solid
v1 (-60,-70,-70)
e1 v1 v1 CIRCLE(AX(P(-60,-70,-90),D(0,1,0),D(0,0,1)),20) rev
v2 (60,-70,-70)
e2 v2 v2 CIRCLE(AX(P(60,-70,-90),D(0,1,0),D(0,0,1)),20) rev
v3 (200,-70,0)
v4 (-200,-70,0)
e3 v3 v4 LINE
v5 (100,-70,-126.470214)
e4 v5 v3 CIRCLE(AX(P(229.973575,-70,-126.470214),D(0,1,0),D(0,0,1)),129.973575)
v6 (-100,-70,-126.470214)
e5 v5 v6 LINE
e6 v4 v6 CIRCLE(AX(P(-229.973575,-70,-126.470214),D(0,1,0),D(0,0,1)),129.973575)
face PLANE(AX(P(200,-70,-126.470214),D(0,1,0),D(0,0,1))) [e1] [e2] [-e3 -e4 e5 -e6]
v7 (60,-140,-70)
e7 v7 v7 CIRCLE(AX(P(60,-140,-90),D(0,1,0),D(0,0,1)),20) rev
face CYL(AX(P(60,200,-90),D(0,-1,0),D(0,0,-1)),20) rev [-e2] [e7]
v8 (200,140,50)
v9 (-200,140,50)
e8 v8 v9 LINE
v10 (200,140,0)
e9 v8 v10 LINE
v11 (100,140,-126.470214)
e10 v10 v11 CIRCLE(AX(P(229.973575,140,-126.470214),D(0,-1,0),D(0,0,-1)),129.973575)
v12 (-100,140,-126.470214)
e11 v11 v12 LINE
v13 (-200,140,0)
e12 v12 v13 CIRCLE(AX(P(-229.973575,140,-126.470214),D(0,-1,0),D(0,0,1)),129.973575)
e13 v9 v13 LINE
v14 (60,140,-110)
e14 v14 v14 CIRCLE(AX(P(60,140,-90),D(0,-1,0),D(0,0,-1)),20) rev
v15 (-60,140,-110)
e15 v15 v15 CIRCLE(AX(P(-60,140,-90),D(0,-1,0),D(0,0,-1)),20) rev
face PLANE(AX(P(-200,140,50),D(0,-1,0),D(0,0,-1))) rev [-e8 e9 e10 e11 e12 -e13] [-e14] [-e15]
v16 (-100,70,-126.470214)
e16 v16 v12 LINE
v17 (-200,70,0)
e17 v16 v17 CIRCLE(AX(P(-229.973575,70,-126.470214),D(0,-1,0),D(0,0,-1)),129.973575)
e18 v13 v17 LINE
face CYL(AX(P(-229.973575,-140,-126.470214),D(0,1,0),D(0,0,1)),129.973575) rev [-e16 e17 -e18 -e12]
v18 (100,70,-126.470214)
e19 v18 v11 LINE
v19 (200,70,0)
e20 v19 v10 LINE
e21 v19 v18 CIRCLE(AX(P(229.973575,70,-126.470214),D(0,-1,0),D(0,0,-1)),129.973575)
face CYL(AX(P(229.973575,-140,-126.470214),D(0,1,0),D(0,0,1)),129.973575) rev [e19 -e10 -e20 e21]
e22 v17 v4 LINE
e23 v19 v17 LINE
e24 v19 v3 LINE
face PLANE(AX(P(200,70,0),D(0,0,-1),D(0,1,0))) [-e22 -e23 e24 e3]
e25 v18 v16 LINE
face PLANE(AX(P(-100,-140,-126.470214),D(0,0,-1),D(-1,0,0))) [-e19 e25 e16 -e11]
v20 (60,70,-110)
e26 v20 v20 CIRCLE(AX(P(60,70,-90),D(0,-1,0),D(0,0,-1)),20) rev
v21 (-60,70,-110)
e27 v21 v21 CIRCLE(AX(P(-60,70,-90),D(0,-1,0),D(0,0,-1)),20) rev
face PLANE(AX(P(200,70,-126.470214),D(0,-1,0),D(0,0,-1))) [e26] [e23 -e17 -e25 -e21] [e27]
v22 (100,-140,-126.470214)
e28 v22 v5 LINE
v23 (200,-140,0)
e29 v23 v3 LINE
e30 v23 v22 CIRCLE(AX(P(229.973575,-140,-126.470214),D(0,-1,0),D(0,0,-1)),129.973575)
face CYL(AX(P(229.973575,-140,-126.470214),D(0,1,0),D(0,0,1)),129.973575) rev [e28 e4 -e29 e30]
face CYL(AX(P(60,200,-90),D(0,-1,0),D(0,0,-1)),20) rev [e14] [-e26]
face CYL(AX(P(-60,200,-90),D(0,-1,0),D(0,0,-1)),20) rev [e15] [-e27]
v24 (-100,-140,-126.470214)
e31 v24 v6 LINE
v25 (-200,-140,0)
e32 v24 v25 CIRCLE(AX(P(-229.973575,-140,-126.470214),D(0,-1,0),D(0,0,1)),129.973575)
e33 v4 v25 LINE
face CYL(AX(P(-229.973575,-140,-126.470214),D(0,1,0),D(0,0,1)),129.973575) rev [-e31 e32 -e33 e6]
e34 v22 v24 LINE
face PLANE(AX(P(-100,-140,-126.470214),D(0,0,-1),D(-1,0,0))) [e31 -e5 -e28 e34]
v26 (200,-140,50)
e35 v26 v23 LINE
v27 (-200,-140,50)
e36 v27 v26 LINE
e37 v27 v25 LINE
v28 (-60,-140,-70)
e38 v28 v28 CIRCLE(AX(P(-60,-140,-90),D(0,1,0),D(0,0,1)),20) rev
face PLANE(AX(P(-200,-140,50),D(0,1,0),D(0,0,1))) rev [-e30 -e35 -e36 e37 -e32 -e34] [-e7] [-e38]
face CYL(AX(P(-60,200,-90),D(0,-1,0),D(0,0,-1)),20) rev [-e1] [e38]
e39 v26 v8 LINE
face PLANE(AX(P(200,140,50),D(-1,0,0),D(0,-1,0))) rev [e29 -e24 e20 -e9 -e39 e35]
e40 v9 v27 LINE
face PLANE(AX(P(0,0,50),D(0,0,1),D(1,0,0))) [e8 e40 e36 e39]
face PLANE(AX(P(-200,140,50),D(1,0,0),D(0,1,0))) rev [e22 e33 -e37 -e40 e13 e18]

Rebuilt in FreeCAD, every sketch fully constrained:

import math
import FreeCAD as App
import Part
import Sketcher
from FreeCAD import Vector
Q = App.Units.Quantity

doc = App.newDocument("Part")
params = doc.addObject("Spreadsheet::Sheet", "Params")
for row, (alias, value) in enumerate([
    ("sketch1_width", "400 mm"),
    ("sketch1_height", "280 mm"),
    ("pad1_length", "50 mm"),
    ("sketch2_width", "200 mm"),
    ("sketch2_width2", "400 mm"),
    ("pad2_length", "140 mm"),
    ("pad2_length2", "140 mm"),
    ("sketch3_width", "140 mm"),
    ("sketch4_diameter", "40 mm"),
], start=1):
    params.set(f"A{row}", alias)
    params.set(f"B{row}", "=" + value)
    params.setAlias(f"B{row}", alias)

body = doc.addObject("PartDesign::Body", "Body")

# Sketch on XY plane
sketch1 = body.newObject("Sketcher::SketchObject", "Sketch")
sketch1.AttachmentSupport = (doc.getObject("XY_Plane"), [""])
sketch1.MapMode = "FlatFace"
sketch1.addGeometry(Part.LineSegment(Vector(-200, 140, 0), Vector(-200, -140, 0)), False)
sketch1.addGeometry(Part.LineSegment(Vector(-200, -140, 0), Vector(200, -140, 0)), False)
sketch1.addGeometry(Part.LineSegment(Vector(200, -140, 0), Vector(200, 140, 0)), False)
sketch1.addGeometry(Part.LineSegment(Vector(200, 140, 0), Vector(-200, 140, 0)), False)
sketch1.addConstraint(Sketcher.Constraint("Coincident", 0, 2, 1, 1))
sketch1.addConstraint(Sketcher.Constraint("Coincident", 1, 2, 2, 1))
sketch1.addConstraint(Sketcher.Constraint("Coincident", 2, 2, 3, 1))
sketch1.addConstraint(Sketcher.Constraint("Coincident", 3, 2, 0, 1))
sketch1.addConstraint(Sketcher.Constraint("Vertical", 0))
sketch1.addConstraint(Sketcher.Constraint("Horizontal", 1))
sketch1.addConstraint(Sketcher.Constraint("Vertical", 2))
sketch1.addConstraint(Sketcher.Constraint("Horizontal", 3))
sketch1.addConstraint(Sketcher.Constraint("Symmetric", 0, 2, 2, 2, -1, 1))
sketch1.addConstraint(Sketcher.Constraint("DistanceX", 1, 1, 1, 2, Q("400 mm")))
sketch1.addConstraint(Sketcher.Constraint("DistanceY", 0, 2, 0, 1, Q("280 mm")))
sketch1.setExpression("Constraints[9]", "Params.sketch1_width")
sketch1.setExpression("Constraints[10]", "Params.sketch1_height")
pad1 = body.newObject("PartDesign::Pad", "Pad")
pad1.Profile = sketch1
pad1.setExpression("Length", "Params.pad1_length")

# Sketch on XZ plane
sketch2 = body.newObject("Sketcher::SketchObject", "Sketch001")
sketch2.AttachmentSupport = (doc.getObject("XZ_Plane"), [""])
sketch2.MapMode = "FlatFace"
sketch2.addGeometry(Part.LineSegment(Vector(100, -126.470214, 0), Vector(-100, -126.470214, 0)), False)
sketch2.addGeometry(Part.ArcOfCircle(Part.Circle(Vector(-229.973575, -126.470214, 0), Vector(0, 0, 1), 129.973575), math.radians(0), math.radians(76.666845)), False)
sketch2.addGeometry(Part.LineSegment(Vector(-200, 0, 0), Vector(200, 0, 0)), False)
sketch2.addGeometry(Part.ArcOfCircle(Part.Circle(Vector(229.973575, -126.470214, 0), Vector(0, 0, 1), 129.973575), math.radians(103.333155), math.radians(180)), False)
sketch2.addConstraint(Sketcher.Constraint("Coincident", 0, 2, 1, 1))
sketch2.addConstraint(Sketcher.Constraint("Coincident", 1, 2, 2, 1))
sketch2.addConstraint(Sketcher.Constraint("Coincident", 2, 2, 3, 1))
sketch2.addConstraint(Sketcher.Constraint("Coincident", 3, 2, 0, 1))
sketch2.addConstraint(Sketcher.Constraint("Horizontal", 0))
sketch2.addConstraint(Sketcher.Constraint("Horizontal", 2))
sketch2.addConstraint(Sketcher.Constraint("Equal", 1, 3))
sketch2.addConstraint(Sketcher.Constraint("Symmetric", 1, 2, 2, 2, -1, 1))
sketch2.addConstraint(Sketcher.Constraint("Horizontal", 1, 3, 3, 3))
sketch2.addConstraint(Sketcher.Constraint("Horizontal", 3, 3, 0, 2))
sketch2.addConstraint(Sketcher.Constraint("DistanceX", 0, 2, 0, 1, Q("200 mm")))
sketch2.addConstraint(Sketcher.Constraint("DistanceX", 2, 1, 2, 2, Q("400 mm")))
sketch2.addConstraint(Sketcher.Constraint("Radius", 1, Q("129.973575 mm")))
sketch2.setExpression("Constraints[10]", "Params.sketch2_width")
sketch2.setExpression("Constraints[11]", "Params.sketch2_width2")
pad2 = body.newObject("PartDesign::Pad", "Pad001")
pad2.Profile = sketch2
pad2.Type = "TwoLengths"
pad2.setExpression("Length", "Params.pad2_length")
pad2.setExpression("Length2", "Params.pad2_length2")
pad2.Reversed = True

# Sketch on YZ plane
sketch3 = body.newObject("Sketcher::SketchObject", "Sketch002")
sketch3.AttachmentSupport = (doc.getObject("YZ_Plane"), [""])
sketch3.MapMode = "FlatFace"
sketch3.addGeometry(Part.LineSegment(Vector(70, 0, 0), Vector(-70, 0, 0)), False)
sketch3.addGeometry(Part.LineSegment(Vector(-70, 0, 0), Vector(-70, -126.470214, 0)), False)
sketch3.addGeometry(Part.LineSegment(Vector(-70, -126.470214, 0), Vector(70, -126.470214, 0)), False)
sketch3.addGeometry(Part.LineSegment(Vector(70, -126.470214, 0), Vector(70, 0, 0)), False)
sketch3.addConstraint(Sketcher.Constraint("Coincident", 0, 2, 1, 1))
sketch3.addConstraint(Sketcher.Constraint("Coincident", 1, 2, 2, 1))
sketch3.addConstraint(Sketcher.Constraint("Coincident", 2, 2, 3, 1))
sketch3.addConstraint(Sketcher.Constraint("Coincident", 3, 2, 0, 1))
sketch3.addConstraint(Sketcher.Constraint("Horizontal", 0))
sketch3.addConstraint(Sketcher.Constraint("Vertical", 1))
sketch3.addConstraint(Sketcher.Constraint("Horizontal", 2))
sketch3.addConstraint(Sketcher.Constraint("Vertical", 3))
sketch3.addConstraint(Sketcher.Constraint("Symmetric", 0, 2, 3, 2, -1, 1))
sketch3.addConstraint(Sketcher.Constraint("DistanceX", 0, 2, 0, 1, Q("140 mm")))
sketch3.addConstraint(Sketcher.Constraint("DistanceY", 1, 2, 1, 1, Q("126.470214 mm")))
sketch3.setExpression("Constraints[9]", "Params.sketch3_width")
pocket1 = body.newObject("PartDesign::Pocket", "Pocket")
pocket1.Profile = sketch3
pocket1.Type = "ThroughAll"
pocket1.Midplane = True

# Sketch on XZ plane
sketch4 = body.newObject("Sketcher::SketchObject", "Sketch003")
sketch4.AttachmentSupport = (doc.getObject("XZ_Plane"), [""])
sketch4.MapMode = "FlatFace"
sketch4.addGeometry(Part.Circle(Vector(-60, -90, 0), Vector(0, 0, 1), 20), False)
sketch4.addGeometry(Part.Circle(Vector(60, -90, 0), Vector(0, 0, 1), 20), False)
sketch4.addConstraint(Sketcher.Constraint("Equal", 0, 1))
sketch4.addConstraint(Sketcher.Constraint("Symmetric", 0, 3, 1, 3, -2))
sketch4.addConstraint(Sketcher.Constraint("Diameter", 0, Q("40 mm")))
sketch4.addConstraint(Sketcher.Constraint("DistanceX", 0, 3, -1, 1, Q("60 mm")))
sketch4.addConstraint(Sketcher.Constraint("DistanceY", 0, 3, -1, 1, Q("90 mm")))
sketch4.setExpression("Constraints[2]", "Params.sketch4_diameter")
pocket2 = body.newObject("PartDesign::Pocket", "Pocket001")
pocket2.Profile = sketch4
pocket2.Type = "ThroughAll"
pocket2.Midplane = True

doc.recompute()
